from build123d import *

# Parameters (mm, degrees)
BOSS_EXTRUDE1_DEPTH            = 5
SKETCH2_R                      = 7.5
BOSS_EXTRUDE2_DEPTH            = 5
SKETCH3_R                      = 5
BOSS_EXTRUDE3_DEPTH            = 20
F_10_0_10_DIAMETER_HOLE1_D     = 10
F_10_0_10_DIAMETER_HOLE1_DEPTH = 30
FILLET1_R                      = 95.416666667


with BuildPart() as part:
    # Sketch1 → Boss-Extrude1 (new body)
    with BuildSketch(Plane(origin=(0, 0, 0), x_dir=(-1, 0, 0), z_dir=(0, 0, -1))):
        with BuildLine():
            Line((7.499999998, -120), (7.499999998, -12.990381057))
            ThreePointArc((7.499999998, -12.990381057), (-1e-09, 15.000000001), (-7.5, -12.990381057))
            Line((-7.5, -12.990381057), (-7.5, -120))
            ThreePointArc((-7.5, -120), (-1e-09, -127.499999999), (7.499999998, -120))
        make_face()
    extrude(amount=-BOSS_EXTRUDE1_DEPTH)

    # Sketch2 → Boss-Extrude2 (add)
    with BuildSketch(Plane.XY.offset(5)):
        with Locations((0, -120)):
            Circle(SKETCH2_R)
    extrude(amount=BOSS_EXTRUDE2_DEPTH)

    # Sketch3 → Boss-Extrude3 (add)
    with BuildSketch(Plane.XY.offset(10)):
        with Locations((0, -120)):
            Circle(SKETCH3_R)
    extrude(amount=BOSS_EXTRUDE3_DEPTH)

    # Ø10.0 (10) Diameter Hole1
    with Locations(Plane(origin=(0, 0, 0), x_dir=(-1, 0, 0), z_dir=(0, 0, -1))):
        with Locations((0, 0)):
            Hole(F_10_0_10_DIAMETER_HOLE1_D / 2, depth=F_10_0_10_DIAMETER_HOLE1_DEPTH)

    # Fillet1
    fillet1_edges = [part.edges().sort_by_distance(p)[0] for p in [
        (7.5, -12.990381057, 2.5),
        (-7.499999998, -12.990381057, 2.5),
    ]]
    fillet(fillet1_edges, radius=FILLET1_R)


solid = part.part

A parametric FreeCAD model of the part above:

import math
import FreeCAD as App
import Part
import Sketcher
Q = App.Units.Quantity


def edges_at(feature, points):
    """Names of the edges that pass closest to the given points."""
    edges = feature.Shape.Edges
    near = lambda p: min(range(len(edges)), key=lambda i: edges[i].distToShape(Part.Vertex(*p))[0])
    return sorted({f"Edge{near(p) + 1}" for p in points})

doc = App.newDocument("Part")
params = doc.addObject("Spreadsheet::Sheet", "Params")
for row, (alias, value) in enumerate([
    ("sketch1_radius", "15 mm"),
    ("sketch1_radius2", "7.5 mm"),
    ("pad1_length", "5 mm"),
    ("sketch2_diameter", "15 mm"),
    ("pad2_length", "5 mm"),
    ("sketch3_diameter", "10 mm"),
    ("pad3_length", "20 mm"),
    ("sketch4_diameter", "10 mm"),
    ("hole_diameter", "10 mm"),
    ("hole_depth", "30 mm"),
    ("fillet_radius", "95.416667 mm"),
], start=1):
    params.set(f"A{row}", alias)
    params.set(f"B{row}", "=" + value)
    params.setAlias(f"B{row}", alias)

body = doc.addObject("PartDesign::Body", "Body")

# Sketch on XY plane
sketch1 = body.newObject("Sketcher::SketchObject", "Sketch")
sketch1.AttachmentSupport = (doc.getObject("XY_Plane"), [""])
sketch1.MapMode = "FlatFace"
sketch1.addGeometry([
    Part.LineSegment(App.Vector(-7, -120, 0), App.Vector(-7, -13, 0)),
    Part.ArcOfCircle(Part.Circle(App.Vector(0, 0, 0), App.Vector(0, 0, 1), 15), math.radians(-60), math.radians(240)),
    Part.LineSegment(App.Vector(8, -13, 0), App.Vector(8, -120, 0)),
    Part.ArcOfCircle(Part.Circle(App.Vector(0, -120, 0), App.Vector(0, 0, 1), 7), math.radians(180), math.radians(360)),
], False)
sketch1.addConstraint([
    Sketcher.Constraint("Coincident", 0, 2, 1, 2),
    Sketcher.Constraint("Coincident", 1, 1, 2, 1),
    Sketcher.Constraint("Tangent", 2, 2, 3, 2),
    Sketcher.Constraint("Tangent", 3, 1, 0, 1),
    Sketcher.Constraint("Vertical", 0),
    Sketcher.Constraint("Vertical", 2),
    Sketcher.Constraint("Coincident", 1, 3, -1, 1),
    Sketcher.Constraint("PointOnObject", 3, 3, -2),
    Sketcher.Constraint("Radius", 1, Q("15 mm")),
    Sketcher.Constraint("Radius", 3, Q("7.5 mm")),
    Sketcher.Constraint("DistanceY", 3, 3, -1, 1, Q("120 mm")),
])
sketch1.setExpression("Constraints[8]", "Params.sketch1_radius")
sketch1.setExpression("Constraints[9]", "Params.sketch1_radius2")
pad1 = body.newObject("PartDesign::Pad", "Pad")
pad1.Profile = sketch1
pad1.setExpression("Length", "Params.pad1_length")

# Sketch on XY plane
sketch2 = body.newObject("Sketcher::SketchObject", "Sketch001")
sketch2.AttachmentSupport = (doc.getObject("XY_Plane"), [""])
sketch2.MapMode = "FlatFace"
sketch2.AttachmentOffset = App.Placement(App.Vector(0, 0, 5), App.Rotation())
sketch2.addGeometry(Part.Circle(App.Vector(0, -120, 0), App.Vector(0, 0, 1), 8), False)
sketch2.addConstraint([
    Sketcher.Constraint("PointOnObject", 0, 3, -2),
    Sketcher.Constraint("Diameter", 0, Q("15 mm")),
    Sketcher.Constraint("DistanceY", 0, 3, -1, 1, Q("120 mm")),
])
sketch2.setExpression("Constraints[1]", "Params.sketch2_diameter")
pad2 = body.newObject("PartDesign::Pad", "Pad001")
pad2.Profile = sketch2
pad2.setExpression("Length", "Params.pad2_length")

# Sketch on XY plane
sketch3 = body.newObject("Sketcher::SketchObject", "Sketch002")
sketch3.AttachmentSupport = (doc.getObject("XY_Plane"), [""])
sketch3.MapMode = "FlatFace"
sketch3.AttachmentOffset = App.Placement(App.Vector(0, 0, 10), App.Rotation())
sketch3.addGeometry(Part.Circle(App.Vector(0, -120, 0), App.Vector(0, 0, 1), 5), False)
sketch3.addConstraint([
    Sketcher.Constraint("PointOnObject", 0, 3, -2),
    Sketcher.Constraint("Diameter", 0, Q("10 mm")),
    Sketcher.Constraint("DistanceY", 0, 3, -1, 1, Q("120 mm")),
])
sketch3.setExpression("Constraints[1]", "Params.sketch3_diameter")
pad3 = body.newObject("PartDesign::Pad", "Pad002")
pad3.Profile = sketch3
pad3.setExpression("Length", "Params.pad3_length")

# Sketch on XY plane
sketch4 = body.newObject("Sketcher::SketchObject", "Sketch003")
sketch4.AttachmentSupport = (doc.getObject("XY_Plane"), [""])
sketch4.MapMode = "FlatFace"
sketch4.addGeometry(Part.Circle(App.Vector(0, 0, 0), App.Vector(0, 0, 1), 5), False)
sketch4.addConstraint([
    Sketcher.Constraint("Coincident", 0, 3, -1, 1),
    Sketcher.Constraint("Diameter", 0, Q("10 mm")),
])
sketch4.setExpression("Constraints[1]", "Params.sketch4_diameter")
doc.recompute()
hole = body.newObject("PartDesign::Hole", "Hole")
hole.Profile = sketch4
hole.ThreadType = "None"
hole.setExpression("Diameter", "Params.hole_diameter")
hole.DepthType = "Dimension"
hole.setExpression("Depth", "Params.hole_depth")
hole.DrillPoint = "Flat"
hole.Reversed = True
doc.recompute()

fillet = body.newObject("PartDesign::Fillet", "Fillet")
fillet.Base = (hole, edges_at(hole, [(7.5, -12.99, 2.5), (-7.5, -12.99, 2.5)]))
fillet.setExpression("Radius", "Params.fillet_radius")

doc.recompute()
